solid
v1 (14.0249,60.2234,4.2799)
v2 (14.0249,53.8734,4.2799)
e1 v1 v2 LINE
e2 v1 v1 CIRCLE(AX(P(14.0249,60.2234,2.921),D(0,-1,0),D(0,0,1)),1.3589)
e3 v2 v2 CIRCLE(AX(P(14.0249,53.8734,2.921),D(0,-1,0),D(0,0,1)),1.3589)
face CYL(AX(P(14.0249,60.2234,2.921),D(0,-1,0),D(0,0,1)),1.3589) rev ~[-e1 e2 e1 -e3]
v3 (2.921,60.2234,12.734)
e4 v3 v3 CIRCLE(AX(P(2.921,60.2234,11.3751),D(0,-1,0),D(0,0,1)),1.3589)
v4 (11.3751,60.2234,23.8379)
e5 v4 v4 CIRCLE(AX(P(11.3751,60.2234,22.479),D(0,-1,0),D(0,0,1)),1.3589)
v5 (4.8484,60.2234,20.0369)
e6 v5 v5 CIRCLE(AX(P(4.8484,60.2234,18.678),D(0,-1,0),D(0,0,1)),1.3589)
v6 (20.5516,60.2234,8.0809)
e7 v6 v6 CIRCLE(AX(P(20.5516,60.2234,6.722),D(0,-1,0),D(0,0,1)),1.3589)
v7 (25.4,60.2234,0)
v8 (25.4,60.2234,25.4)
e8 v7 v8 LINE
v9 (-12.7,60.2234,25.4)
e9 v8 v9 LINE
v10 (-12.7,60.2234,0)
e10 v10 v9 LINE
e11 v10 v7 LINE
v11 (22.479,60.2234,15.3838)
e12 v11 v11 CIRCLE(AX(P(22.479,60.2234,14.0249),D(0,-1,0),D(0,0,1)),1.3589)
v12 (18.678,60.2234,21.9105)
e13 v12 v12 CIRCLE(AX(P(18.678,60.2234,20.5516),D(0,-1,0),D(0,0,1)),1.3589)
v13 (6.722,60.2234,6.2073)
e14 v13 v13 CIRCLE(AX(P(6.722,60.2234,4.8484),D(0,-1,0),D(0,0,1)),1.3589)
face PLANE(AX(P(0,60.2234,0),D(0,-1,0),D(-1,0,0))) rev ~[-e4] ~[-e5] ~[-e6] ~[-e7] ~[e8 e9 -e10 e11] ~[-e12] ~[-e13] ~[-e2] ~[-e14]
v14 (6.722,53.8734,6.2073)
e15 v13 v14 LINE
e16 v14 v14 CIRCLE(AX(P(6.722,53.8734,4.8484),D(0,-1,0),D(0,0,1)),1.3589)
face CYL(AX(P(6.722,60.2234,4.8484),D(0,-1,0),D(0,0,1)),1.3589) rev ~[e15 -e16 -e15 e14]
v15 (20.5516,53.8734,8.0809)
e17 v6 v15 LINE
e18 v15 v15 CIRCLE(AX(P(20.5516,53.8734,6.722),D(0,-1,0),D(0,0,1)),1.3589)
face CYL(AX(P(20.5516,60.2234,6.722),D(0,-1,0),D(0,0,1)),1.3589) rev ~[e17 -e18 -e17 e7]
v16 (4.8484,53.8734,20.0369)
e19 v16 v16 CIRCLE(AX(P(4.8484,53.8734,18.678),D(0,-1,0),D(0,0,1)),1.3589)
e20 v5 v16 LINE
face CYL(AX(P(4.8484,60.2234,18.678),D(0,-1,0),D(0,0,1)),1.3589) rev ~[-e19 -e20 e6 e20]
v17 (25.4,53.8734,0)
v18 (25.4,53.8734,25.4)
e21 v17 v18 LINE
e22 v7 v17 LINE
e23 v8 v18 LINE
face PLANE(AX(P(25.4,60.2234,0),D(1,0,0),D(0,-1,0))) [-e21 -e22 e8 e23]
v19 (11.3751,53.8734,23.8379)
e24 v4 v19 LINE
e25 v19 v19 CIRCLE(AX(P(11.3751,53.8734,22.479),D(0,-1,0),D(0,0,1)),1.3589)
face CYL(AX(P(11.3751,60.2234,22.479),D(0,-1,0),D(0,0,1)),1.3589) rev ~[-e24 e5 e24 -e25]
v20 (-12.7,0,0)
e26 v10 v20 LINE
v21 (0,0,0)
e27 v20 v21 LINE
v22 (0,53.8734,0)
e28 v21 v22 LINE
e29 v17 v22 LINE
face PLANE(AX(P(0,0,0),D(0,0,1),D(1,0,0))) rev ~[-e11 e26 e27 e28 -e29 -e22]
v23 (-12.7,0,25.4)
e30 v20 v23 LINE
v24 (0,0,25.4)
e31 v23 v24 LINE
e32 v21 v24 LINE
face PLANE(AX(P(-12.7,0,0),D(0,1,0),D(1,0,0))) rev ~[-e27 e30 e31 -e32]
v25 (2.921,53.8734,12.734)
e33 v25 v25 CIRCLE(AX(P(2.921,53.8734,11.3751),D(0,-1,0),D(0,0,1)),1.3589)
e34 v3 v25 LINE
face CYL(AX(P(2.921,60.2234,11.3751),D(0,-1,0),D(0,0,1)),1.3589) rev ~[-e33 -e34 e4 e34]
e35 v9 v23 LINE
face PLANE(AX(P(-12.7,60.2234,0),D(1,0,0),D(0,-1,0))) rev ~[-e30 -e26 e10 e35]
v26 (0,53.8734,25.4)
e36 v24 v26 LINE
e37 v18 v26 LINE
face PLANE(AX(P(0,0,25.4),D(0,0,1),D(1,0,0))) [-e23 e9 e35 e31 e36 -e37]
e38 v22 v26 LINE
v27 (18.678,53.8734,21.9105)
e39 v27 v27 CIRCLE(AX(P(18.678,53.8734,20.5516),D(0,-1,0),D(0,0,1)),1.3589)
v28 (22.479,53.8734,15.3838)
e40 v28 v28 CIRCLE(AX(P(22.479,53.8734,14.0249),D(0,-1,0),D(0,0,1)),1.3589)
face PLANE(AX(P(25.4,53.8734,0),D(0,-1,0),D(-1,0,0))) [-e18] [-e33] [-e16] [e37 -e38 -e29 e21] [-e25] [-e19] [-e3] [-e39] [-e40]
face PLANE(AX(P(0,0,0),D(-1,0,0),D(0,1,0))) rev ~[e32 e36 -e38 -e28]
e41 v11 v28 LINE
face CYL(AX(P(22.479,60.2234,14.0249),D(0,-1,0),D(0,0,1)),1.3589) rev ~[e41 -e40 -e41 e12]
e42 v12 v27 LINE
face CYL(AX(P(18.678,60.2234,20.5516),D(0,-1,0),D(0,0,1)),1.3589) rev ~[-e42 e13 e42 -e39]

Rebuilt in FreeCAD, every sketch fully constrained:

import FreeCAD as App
import Part
import Sketcher
from FreeCAD import Vector
Q = App.Units.Quantity

doc = App.newDocument("Part")
body = doc.addObject("PartDesign::Body", "Body")

sketch1 = doc.addObject("Sketcher::SketchObject", "Sketch")
body.addObject(sketch1)
sketch1.AttachmentSupport = (doc.XY_Plane, [""])
sketch1.MapMode = "FlatFace"
sketch1.addGeometry([
    Part.LineSegment(Vector(-13, 0, 0), Vector(0, 0, 0)),
    Part.LineSegment(Vector(0, 0, 0), Vector(0, 54, 0)),
    Part.LineSegment(Vector(0, 54, 0), Vector(25, 54, 0)),
    Part.LineSegment(Vector(25, 54, 0), Vector(25, 60, 0)),
    Part.LineSegment(Vector(25, 60, 0), Vector(-13, 60, 0)),
    Part.LineSegment(Vector(-13, 60, 0), Vector(-13, 0, 0)),
], False)
sketch1.addConstraint([
    Sketcher.Constraint("Coincident", 0, 2, 1, 1),
    Sketcher.Constraint("Coincident", 1, 2, 2, 1),
    Sketcher.Constraint("Coincident", 2, 2, 3, 1),
    Sketcher.Constraint("Coincident", 3, 2, 4, 1),
    Sketcher.Constraint("Coincident", 4, 2, 5, 1),
    Sketcher.Constraint("Coincident", 5, 2, 0, 1),
    Sketcher.Constraint("Horizontal", 0),
    Sketcher.Constraint("Vertical", 1),
    Sketcher.Constraint("Horizontal", 2),
    Sketcher.Constraint("Vertical", 3),
    Sketcher.Constraint("Horizontal", 4),
    Sketcher.Constraint("Vertical", 5),
    Sketcher.Constraint("Coincident", 0, 2, -1, 1),
    Sketcher.Constraint("DistanceX", 2, 1, 2, 2, Q("1 in")),
    Sketcher.Constraint("DistanceX", 0, 1, 0, 2, Q("0.5 in")),
    Sketcher.Constraint("DistanceY", 3, 1, 3, 2, Q("0.25 in")),
    Sketcher.Constraint("DistanceY", 5, 2, 5, 1, Q("2.371 in")),
])
pad1 = doc.addObject("PartDesign::Pad", "Pad")
body.addObject(pad1)
pad1.Profile = sketch1
pad1.Length = Q("1 in")

sketch2 = doc.addObject("Sketcher::SketchObject", "Sketch001")
body.addObject(sketch2)
sketch2.AttachmentSupport = (doc.XZ_Plane, [""])
sketch2.MapMode = "FlatFace"
sketch2.AttachmentOffset = App.Placement(Vector(0, 0, -2.371 * 25.4), App.Rotation())
sketch2.addGeometry([
    Part.Circle(Vector(2.9, 11.4, 0), Vector(0, 0, 1), 1.4),
    Part.Circle(Vector(4.8, 18.7, 0), Vector(0, 0, 1), 1.4),
    Part.Circle(Vector(11.4, 22.5, 0), Vector(0, 0, 1), 1.4),
    Part.Circle(Vector(18.7, 20.6, 0), Vector(0, 0, 1), 1.4),
    Part.Circle(Vector(22.5, 14, 0), Vector(0, 0, 1), 1.4),
    Part.Circle(Vector(20.6, 6.7, 0), Vector(0, 0, 1), 1.4),
    Part.Circle(Vector(14, 2.9, 0), Vector(0, 0, 1), 1.4),
    Part.Circle(Vector(6.7, 4.8, 0), Vector(0, 0, 1), 1.4),
], False)
sketch2.addConstraint([
    Sketcher.Constraint("Equal", 0, 1),
    Sketcher.Constraint("Equal", 1, 2),
    Sketcher.Constraint("Equal", 2, 3),
    Sketcher.Constraint("Equal", 3, 4),
    Sketcher.Constraint("Equal", 4, 5),
    Sketcher.Constraint("Equal", 5, 6),
    Sketcher.Constraint("Equal", 6, 7),
    Sketcher.Constraint("Diameter", 0, Q("0.107 in")),
    Sketcher.Constraint("DistanceX", 0, 3, 4, 3, Q("0.77 in")),
    Sketcher.Constraint("DistanceX", -1, 1, 0, 3, Q("0.115 in")),
    Sketcher.Constraint("DistanceY", -1, 1, 2, 3, Q("0.885 in")),
    Sketcher.Constraint("DistanceY", -1, 1, 6, 3, Q("0.115 in")),
    Sketcher.Constraint("DistanceY", 4, 3, 1, 3, Q("0.1832 in")),
    Sketcher.Constraint("DistanceY", 5, 3, 0, 3, Q("0.1832 in")),
    Sketcher.Constraint("DistanceY", 5, 3, 1, 3, Q("0.4707 in")),
    Sketcher.Constraint("DistanceX", 6, 3, 3, 3, Q("0.1832 in")),
    Sketcher.Constraint("DistanceX", 7, 3, 2, 3, Q("0.1832 in")),
    Sketcher.Constraint("DistanceY", -1, 1, 0, 3, Q("11.375 mm")),
    Sketcher.Constraint("DistanceX", -1, 1, 1, 3, Q("4.8484 mm")),
    Sketcher.Constraint("DistanceX", -1, 1, 2, 3, Q("11.375 mm")),
    Sketcher.Constraint("DistanceX", -1, 1, 3, 3, Q("18.678 mm")),
    Sketcher.Constraint("DistanceY", -1, 1, 3, 3, Q("20.5516 mm")),
    Sketcher.Constraint("DistanceX", -1, 1, 5, 3, Q("20.5516 mm")),
    Sketcher.Constraint("DistanceY", -1, 1, 7, 3, Q("4.8484 mm")),
])
doc.recompute()
hole = doc.addObject("PartDesign::Hole", "Hole")
body.addObject(hole)
hole.Profile = sketch2
hole.ThreadType = "None"
hole.Diameter = Q("0.107 in")
hole.DepthType = "ThroughAll"
hole.Reversed = True

doc.recompute()
